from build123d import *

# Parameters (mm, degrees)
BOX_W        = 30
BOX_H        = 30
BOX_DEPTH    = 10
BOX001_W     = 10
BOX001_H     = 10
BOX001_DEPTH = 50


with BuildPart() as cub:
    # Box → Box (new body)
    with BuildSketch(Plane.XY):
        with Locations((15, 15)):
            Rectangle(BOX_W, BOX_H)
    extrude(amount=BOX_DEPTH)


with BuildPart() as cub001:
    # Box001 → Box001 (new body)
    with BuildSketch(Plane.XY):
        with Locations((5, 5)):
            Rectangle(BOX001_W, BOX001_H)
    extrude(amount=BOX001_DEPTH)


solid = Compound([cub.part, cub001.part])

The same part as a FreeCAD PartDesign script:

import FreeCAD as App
import Part
import Sketcher

V = App.Vector


def add_polygon(sketch, points):
    """Adds a closed chain of lines whose ends are joined by coincident constraints."""
    first, n = sketch.GeometryCount, len(points)
    for a, b in zip(points, points[1:] + points[:1]):
        sketch.addGeometry(Part.LineSegment(App.Vector(*a, 0), App.Vector(*b, 0)), False)
    for i in range(n):
        sketch.addConstraint(Sketcher.Constraint("Coincident", first + i, 2, first + (i + 1) % n, 1))

doc = App.newDocument("Part")
body = doc.addObject("PartDesign::Body", "Body")

# Sketch on XY plane
sketch1 = doc.addObject("Sketcher::SketchObject", "Sketch")
body.addObject(sketch1)
sketch1.AttachmentSupport = (doc.XY_Plane, [""])
sketch1.MapMode = "FlatFace"
add_polygon(sketch1, [(0, 30), (0, 0), (30, 0), (30, 30)])  # lines 0-3
sketch1.addConstraint(Sketcher.Constraint("Vertical", 0))
sketch1.addConstraint(Sketcher.Constraint("Horizontal", 1))
sketch1.addConstraint(Sketcher.Constraint("Vertical", 2))
sketch1.addConstraint(Sketcher.Constraint("Horizontal", 3))
sketch1.addConstraint(Sketcher.Constraint("Coincident", 0, 2, -1, 1))
sketch1.addConstraint(Sketcher.Constraint("Equal", 3, 0))
sketch1.addConstraint(Sketcher.Constraint("DistanceX", 1, 1, 1, 2, 30.0))
pad1 = doc.addObject("PartDesign::Pad", "Pad")
body.addObject(pad1)
pad1.Profile = sketch1
pad1.Length = 10
body2 = doc.addObject("PartDesign::Body", "Body001")

# Sketch on XY plane
sketch2 = doc.addObject("Sketcher::SketchObject", "Sketch001")
body2.addObject(sketch2)
sketch2.AttachmentSupport = (doc.getObject("XY_Plane001"), [""])
sketch2.MapMode = "FlatFace"
add_polygon(sketch2, [(0, 10), (0, 0), (10, 0), (10, 10)])  # lines 0-3
sketch2.addConstraint(Sketcher.Constraint("Vertical", 0))
sketch2.addConstraint(Sketcher.Constraint("Horizontal", 1))
sketch2.addConstraint(Sketcher.Constraint("Vertical", 2))
sketch2.addConstraint(Sketcher.Constraint("Horizontal", 3))
sketch2.addConstraint(Sketcher.Constraint("Coincident", 0, 2, -1, 1))
sketch2.addConstraint(Sketcher.Constraint("Equal", 3, 0))
sketch2.addConstraint(Sketcher.Constraint("DistanceX", 1, 1, 1, 2, 10.0))
pad2 = doc.addObject("PartDesign::Pad", "Pad001")
body2.addObject(pad2)
pad2.Profile = sketch2
pad2.Length = 50

doc.recompute()
